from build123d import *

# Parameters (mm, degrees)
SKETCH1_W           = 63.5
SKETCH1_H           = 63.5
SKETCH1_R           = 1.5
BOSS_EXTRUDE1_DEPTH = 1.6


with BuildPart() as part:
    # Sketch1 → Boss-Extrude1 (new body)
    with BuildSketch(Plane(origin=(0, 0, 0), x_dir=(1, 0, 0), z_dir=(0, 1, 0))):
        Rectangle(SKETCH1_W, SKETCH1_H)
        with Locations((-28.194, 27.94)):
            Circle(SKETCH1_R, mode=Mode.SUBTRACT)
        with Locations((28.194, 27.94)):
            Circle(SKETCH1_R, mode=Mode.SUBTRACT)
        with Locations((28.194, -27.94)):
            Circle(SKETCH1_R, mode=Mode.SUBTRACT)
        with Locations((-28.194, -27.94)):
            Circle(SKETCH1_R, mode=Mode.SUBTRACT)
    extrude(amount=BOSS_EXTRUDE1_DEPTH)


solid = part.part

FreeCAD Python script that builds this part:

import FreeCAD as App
import Part
import Sketcher
Q = App.Units.Quantity

doc = App.newDocument("Part")
body = doc.addObject("PartDesign::Body", "Body")

# Sketch on XZ plane
sketch1 = doc.addObject("Sketcher::SketchObject", "Sketch")
body.addObject(sketch1)
sketch1.AttachmentSupport = (doc.XZ_Plane, [""])
sketch1.MapMode = "FlatFace"
sketch1.addGeometry(Part.LineSegment(App.Vector(-31.75, -31.75, 0), App.Vector(-31.75, 31.75, 0)), False)
sketch1.addGeometry(Part.LineSegment(App.Vector(-31.75, 31.75, 0), App.Vector(31.75, 31.75, 0)), False)
sketch1.addGeometry(Part.LineSegment(App.Vector(31.75, 31.75, 0), App.Vector(31.75, -31.75, 0)), False)
sketch1.addGeometry(Part.LineSegment(App.Vector(31.75, -31.75, 0), App.Vector(-31.75, -31.75, 0)), False)
sketch1.addGeometry(Part.Circle(App.Vector(-28.194, 27.94, 0), App.Vector(0, 0, 1), 1.5), False)
sketch1.addGeometry(Part.Circle(App.Vector(28.194, 27.94, 0), App.Vector(0, 0, 1), 1.5), False)
sketch1.addGeometry(Part.Circle(App.Vector(-28.194, -27.94, 0), App.Vector(0, 0, 1), 1.5), False)
sketch1.addGeometry(Part.Circle(App.Vector(28.194, -27.94, 0), App.Vector(0, 0, 1), 1.5), False)
sketch1.addConstraint(Sketcher.Constraint("Coincident", 0, 2, 1, 1))
sketch1.addConstraint(Sketcher.Constraint("Coincident", 1, 2, 2, 1))
sketch1.addConstraint(Sketcher.Constraint("Coincident", 2, 2, 3, 1))
sketch1.addConstraint(Sketcher.Constraint("Coincident", 3, 2, 0, 1))
sketch1.addConstraint(Sketcher.Constraint("Vertical", 0))
sketch1.addConstraint(Sketcher.Constraint("Horizontal", 1))
sketch1.addConstraint(Sketcher.Constraint("Vertical", 2))
sketch1.addConstraint(Sketcher.Constraint("Horizontal", 3))
sketch1.addConstraint(Sketcher.Constraint("Equal", 4, 5))
sketch1.addConstraint(Sketcher.Constraint("Equal", 5, 6))
sketch1.addConstraint(Sketcher.Constraint("Equal", 6, 7))
sketch1.addConstraint(Sketcher.Constraint("Symmetric", 5, 3, 6, 3, -1, 1))
sketch1.addConstraint(Sketcher.Constraint("Symmetric", 4, 3, 7, 3, -1, 1))
sketch1.addConstraint(Sketcher.Constraint("Symmetric", 0, 2, 2, 2, -1, 1))
sketch1.addConstraint(Sketcher.Constraint("Symmetric", 4, 3, 5, 3, -2))
sketch1.addConstraint(Sketcher.Constraint("Equal", 3, 0))
sketch1.addConstraint(Sketcher.Constraint("Diameter", 4, Q("3 mm")))
sketch1.addConstraint(Sketcher.Constraint("DistanceX", 1, 1, 1, 2, Q("63.5 mm")))
sketch1.addConstraint(Sketcher.Constraint("DistanceY", -1, 1, 4, 3, Q("27.94 mm")))
sketch1.addConstraint(Sketcher.Constraint("DistanceX", 4, 3, -1, 1, Q("28.194 mm")))
pad1 = doc.addObject("PartDesign::Pad", "Pad")
body.addObject(pad1)
pad1.Profile = sketch1
pad1.Length = 1.6
pad1.Reversed = True

doc.recompute()
